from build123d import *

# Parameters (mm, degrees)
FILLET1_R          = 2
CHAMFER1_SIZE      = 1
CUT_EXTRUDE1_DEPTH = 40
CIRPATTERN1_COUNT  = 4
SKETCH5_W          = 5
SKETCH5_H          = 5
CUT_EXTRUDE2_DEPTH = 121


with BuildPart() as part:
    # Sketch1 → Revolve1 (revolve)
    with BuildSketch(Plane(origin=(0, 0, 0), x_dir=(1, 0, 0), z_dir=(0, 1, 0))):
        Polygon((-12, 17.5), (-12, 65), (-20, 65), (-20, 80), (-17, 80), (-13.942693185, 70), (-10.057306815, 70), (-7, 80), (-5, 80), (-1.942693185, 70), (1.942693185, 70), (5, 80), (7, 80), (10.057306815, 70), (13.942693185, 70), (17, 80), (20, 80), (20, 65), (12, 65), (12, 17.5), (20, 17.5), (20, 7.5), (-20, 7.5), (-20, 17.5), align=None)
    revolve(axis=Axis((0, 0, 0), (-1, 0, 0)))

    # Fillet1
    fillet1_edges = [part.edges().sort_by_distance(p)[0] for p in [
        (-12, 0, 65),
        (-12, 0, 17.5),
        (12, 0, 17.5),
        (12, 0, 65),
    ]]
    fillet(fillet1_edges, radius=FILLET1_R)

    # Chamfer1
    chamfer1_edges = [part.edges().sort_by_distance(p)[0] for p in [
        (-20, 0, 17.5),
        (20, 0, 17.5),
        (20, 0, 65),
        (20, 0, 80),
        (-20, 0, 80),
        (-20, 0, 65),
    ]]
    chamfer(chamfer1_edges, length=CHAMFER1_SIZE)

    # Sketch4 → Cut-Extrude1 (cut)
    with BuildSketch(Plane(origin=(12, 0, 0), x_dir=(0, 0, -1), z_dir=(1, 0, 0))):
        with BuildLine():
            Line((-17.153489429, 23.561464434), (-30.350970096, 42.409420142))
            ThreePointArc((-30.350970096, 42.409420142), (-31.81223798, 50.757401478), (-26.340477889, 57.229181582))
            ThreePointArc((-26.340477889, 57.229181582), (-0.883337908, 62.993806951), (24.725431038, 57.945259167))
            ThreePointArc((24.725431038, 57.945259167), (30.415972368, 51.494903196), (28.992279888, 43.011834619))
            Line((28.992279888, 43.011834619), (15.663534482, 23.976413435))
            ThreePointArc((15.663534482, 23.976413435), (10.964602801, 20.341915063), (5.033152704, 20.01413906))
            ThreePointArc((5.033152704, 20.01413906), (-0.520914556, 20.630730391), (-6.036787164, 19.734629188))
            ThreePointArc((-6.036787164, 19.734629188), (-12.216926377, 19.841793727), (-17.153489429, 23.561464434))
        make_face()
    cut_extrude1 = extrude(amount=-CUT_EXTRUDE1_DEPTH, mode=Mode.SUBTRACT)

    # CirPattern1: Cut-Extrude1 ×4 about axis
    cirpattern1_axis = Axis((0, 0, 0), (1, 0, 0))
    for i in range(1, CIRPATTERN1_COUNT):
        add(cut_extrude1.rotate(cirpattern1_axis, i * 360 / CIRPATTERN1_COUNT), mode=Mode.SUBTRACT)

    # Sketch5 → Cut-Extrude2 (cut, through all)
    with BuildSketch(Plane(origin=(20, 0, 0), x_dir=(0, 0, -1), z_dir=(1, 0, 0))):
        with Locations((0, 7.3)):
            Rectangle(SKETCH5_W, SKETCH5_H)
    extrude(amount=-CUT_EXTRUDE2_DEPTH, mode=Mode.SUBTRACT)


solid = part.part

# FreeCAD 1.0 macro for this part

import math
import FreeCAD as App
import Part
import Sketcher
Q = App.Units.Quantity


def edges_at(feature, points):
    """Names of the edges that pass closest to the given points."""
    edges = feature.Shape.Edges
    near = lambda p: min(range(len(edges)), key=lambda i: edges[i].distToShape(Part.Vertex(*p))[0])
    return sorted({f"Edge{near(p) + 1}" for p in points})


def add_polygon(sketch, points):
    """Adds a closed chain of lines whose ends are joined by coincident constraints."""
    first, n = sketch.GeometryCount, len(points)
    for a, b in zip(points, points[1:] + points[:1]):
        sketch.addGeometry(Part.LineSegment(App.Vector(*a, 0), App.Vector(*b, 0)), False)
    for i in range(n):
        sketch.addConstraint(Sketcher.Constraint("Coincident", first + i, 2, first + (i + 1) % n, 1))

doc = App.newDocument("Part")
body = doc.addObject("PartDesign::Body", "Body")

sketch1 = doc.addObject("Sketcher::SketchObject", "Sketch")
body.addObject(sketch1)
sketch1.AttachmentSupport = (doc.XZ_Plane, [""])
sketch1.MapMode = "FlatFace"
add_polygon(sketch1, [(-12, -65), (-12, -17.5), (-20, -17.5), (-20, -7.5), (20, -7.5), (20, -17.5), (12, -17.5), (12, -65), (20, -65), (20, -80), (17, -80), (13.9, -70), (10.1, -70), (7, -80), (5, -80), (1.9, -70), (-1.9, -70), (-5, -80), (-7, -80), (-10.1, -70), (-13.9, -70), (-17, -80), (-20, -80), (-20, -65)])
sketch1.addConstraint(Sketcher.Constraint("Vertical", 0))
sketch1.addConstraint(Sketcher.Constraint("Horizontal", 1))
sketch1.addConstraint(Sketcher.Constraint("Vertical", 2))
sketch1.addConstraint(Sketcher.Constraint("Horizontal", 3))
sketch1.addConstraint(Sketcher.Constraint("Vertical", 4))
sketch1.addConstraint(Sketcher.Constraint("Horizontal", 5))
sketch1.addConstraint(Sketcher.Constraint("Vertical", 6))
sketch1.addConstraint(Sketcher.Constraint("Horizontal", 7))
sketch1.addConstraint(Sketcher.Constraint("Vertical", 8))
sketch1.addConstraint(Sketcher.Constraint("Horizontal", 9))
sketch1.addConstraint(Sketcher.Constraint("Horizontal", 11))
sketch1.addConstraint(Sketcher.Constraint("Horizontal", 13))
sketch1.addConstraint(Sketcher.Constraint("Horizontal", 15))
sketch1.addConstraint(Sketcher.Constraint("Horizontal", 17))
sketch1.addConstraint(Sketcher.Constraint("Horizontal", 19))
sketch1.addConstraint(Sketcher.Constraint("Horizontal", 21))
sketch1.addConstraint(Sketcher.Constraint("Vertical", 22))
sketch1.addConstraint(Sketcher.Constraint("Horizontal", 23))
sketch1.addConstraint(Sketcher.Constraint("Symmetric", 1, 2, 4, 2, -2))
sketch1.addConstraint(Sketcher.Constraint("Symmetric", 13, 2, 16, 2, -2))
sketch1.addConstraint(Sketcher.Constraint("Symmetric", 11, 2, 18, 2, -2))
sketch1.addConstraint(Sketcher.Constraint("Symmetric", 9, 2, 20, 2, -2))
sketch1.addConstraint(Sketcher.Constraint("Symmetric", 7, 2, 22, 2, -2))
sketch1.addConstraint(Sketcher.Constraint("Parallel", 10, 14))
sketch1.addConstraint(Sketcher.Constraint("Parallel", 12, 16))
sketch1.addConstraint(Sketcher.Constraint("Parallel", 14, 18))
sketch1.addConstraint(Sketcher.Constraint("Parallel", 16, 20))
sketch1.addConstraint(Sketcher.Constraint("Horizontal", 9, 2, 12, 2))
sketch1.addConstraint(Sketcher.Constraint("Horizontal", 11, 2, 14, 2))
sketch1.addConstraint(Sketcher.Constraint("Vertical", 4, 2, 7, 2))
sketch1.addConstraint(Sketcher.Constraint("Equal", 1, 5))
sketch1.addConstraint(Sketcher.Constraint("Equal", 11, 15))
sketch1.addConstraint(Sketcher.Constraint("Equal", 13, 17))
sketch1.addConstraint(Sketcher.Constraint("DistanceX", 1, 2, 1, 1, Q("8 mm")))
sketch1.addConstraint(Sketcher.Constraint("DistanceX", 3, 1, 3, 2, Q("40 mm")))
sketch1.addConstraint(Sketcher.Constraint("DistanceX", 9, 2, 9, 1, Q("3 mm")))
sketch1.addConstraint(Sketcher.Constraint("DistanceX", 13, 2, 13, 1, Q("2 mm")))
sketch1.addConstraint(Sketcher.Constraint("DistanceY", 2, 1, 2, 2, Q("10 mm")))
sketch1.addConstraint(Sketcher.Constraint("DistanceY", 8, 2, 8, 1, Q("15 mm")))
sketch1.addConstraint(Sketcher.Constraint("Angle", 10, Q("107 deg")))
sketch1.addConstraint(Sketcher.Constraint("DistanceY", 0, 1, 0, 2, Q("47.5 mm")))
sketch1.addConstraint(Sketcher.Constraint("DistanceY", 6, 2, -1, 1, Q("65 mm")))
sketch1.addConstraint(Sketcher.Constraint("DistanceY", 10, 2, -1, 1, Q("70 mm")))
revolution = doc.addObject("PartDesign::Revolution", "Revolution")
body.addObject(revolution)
revolution.Profile = sketch1
revolution.ReferenceAxis = (sketch1, ["H_Axis"])
revolution.Angle = 360
doc.recompute()

fillet = doc.addObject("PartDesign::Fillet", "Fillet")
body.addObject(fillet)
fillet.Base = (revolution, edges_at(revolution, [
    (-12, 0, 65),
    (-12, 0, 17.5),
    (12, 0, 17.5),
    (12, 0, 65),
]))
fillet.Radius = 2
doc.recompute()

chamfer = doc.addObject("PartDesign::Chamfer", "Chamfer")
body.addObject(chamfer)
chamfer.Base = (fillet, edges_at(fillet, [
    (-20, 0, 17.5),
    (20, 0, 17.5),
    (20, 0, 65),
    (20, 0, 80),
    (-20, 0, 80),
    (-20, 0, 65),
]))
chamfer.Size = 1

sketch2 = doc.addObject("Sketcher::SketchObject", "Sketch001")
body.addObject(sketch2)
sketch2.AttachmentSupport = (doc.YZ_Plane, [""])
sketch2.MapMode = "FlatFace"
sketch2.AttachmentOffset = App.Placement(App.Vector(0, 0, 12), App.Rotation())
sketch2.addGeometry(Part.LineSegment(App.Vector(42, 30, 0), App.Vector(24, 17, 0)), False)
sketch2.addGeometry(Part.ArcOfCircle(Part.Circle(App.Vector(29, 9, 0), App.Vector(0, 0, 1), 10), math.radians(125), math.radians(197)), False)
sketch2.addGeometry(Part.ArcOfCircle(Part.Circle(App.Vector(0, 0, 0), App.Vector(0, 0, 1), 21), math.radians(-14), math.radians(17)), False)
sketch2.addGeometry(Part.ArcOfCircle(Part.Circle(App.Vector(30, -7, 0), App.Vector(0, 0, 1), 10), math.radians(166), math.radians(235)), False)
sketch2.addGeometry(Part.LineSegment(App.Vector(24, -16, 0), App.Vector(43, -29, 0)), False)
sketch2.addGeometry(Part.ArcOfCircle(Part.Circle(App.Vector(49, -21, 0), App.Vector(0, 0, 1), 10), math.radians(-125), math.radians(-23)), False)
sketch2.addGeometry(Part.ArcOfCircle(Part.Circle(App.Vector(0, 0, 0), App.Vector(0, 0, 1), 63), math.radians(-23), math.radians(25)), False)
sketch2.addGeometry(Part.ArcOfCircle(Part.Circle(App.Vector(48, 22, 0), App.Vector(0, 0, 1), 10), math.radians(25), math.radians(125)), False)
sketch2.addConstraint(Sketcher.Constraint("Tangent", 0, 2, 1, 1))
sketch2.addConstraint(Sketcher.Constraint("Tangent", 1, 2, 2, 2))
sketch2.addConstraint(Sketcher.Constraint("Tangent", 2, 1, 3, 1))
sketch2.addConstraint(Sketcher.Constraint("Tangent", 3, 2, 4, 1))
sketch2.addConstraint(Sketcher.Constraint("Tangent", 4, 2, 5, 1))
sketch2.addConstraint(Sketcher.Constraint("Tangent", 5, 2, 6, 1))
sketch2.addConstraint(Sketcher.Constraint("Tangent", 6, 2, 7, 1))
sketch2.addConstraint(Sketcher.Constraint("Tangent", 7, 2, 0, 1))
sketch2.addConstraint(Sketcher.Constraint("Coincident", 2, 3, -1, 1))
sketch2.addConstraint(Sketcher.Constraint("Coincident", 6, 3, -1, 1))
sketch2.addConstraint(Sketcher.Constraint("Equal", 1, 3))
sketch2.addConstraint(Sketcher.Constraint("Equal", 3, 5))
sketch2.addConstraint(Sketcher.Constraint("Equal", 5, 7))
sketch2.addConstraint(Sketcher.Constraint("Radius", 1, Q("10 mm")))
sketch2.addConstraint(Sketcher.Constraint("Radius", 6, Q("63 mm")))
sketch2.addConstraint(Sketcher.Constraint("Angle", 0, Q("-145 deg")))
sketch2.addConstraint(Sketcher.Constraint("Angle", 4, Q("-35 deg")))
sketch2.addConstraint(Sketcher.Constraint("Radius", 2, Q("20.637306 mm")))
sketch2.addConstraint(Sketcher.Constraint("DistanceY", 1, 3, 7, 2, Q("21.389001 mm")))
sketch2.addConstraint(Sketcher.Constraint("DistanceX", -1, 1, 5, 3, Q("48.747599 mm")))
pocket1 = doc.addObject("PartDesign::Pocket", "Pocket")
body.addObject(pocket1)
pocket1.Profile = sketch2
pocket1.Length = 40
doc.recompute()

polarpattern = doc.addObject("PartDesign::PolarPattern", "PolarPattern")
body.addObject(polarpattern)
polarpattern.Originals = [pocket1]
polarpattern.Axis = (doc.X_Axis, [""])
polarpattern.Angle = 360
polarpattern.Occurrences = 4
body.Tip = polarpattern

sketch3 = doc.addObject("Sketcher::SketchObject", "Sketch002")
body.addObject(sketch3)
sketch3.AttachmentSupport = (doc.YZ_Plane, [""])
sketch3.MapMode = "FlatFace"
sketch3.AttachmentOffset = App.Placement(App.Vector(0, 0, 20), App.Rotation())
add_polygon(sketch3, [(10, 2), (5, 2), (5, -2), (10, -2)])
sketch3.addConstraint(Sketcher.Constraint("Horizontal", 0))
sketch3.addConstraint(Sketcher.Constraint("Vertical", 1))
sketch3.addConstraint(Sketcher.Constraint("Horizontal", 2))
sketch3.addConstraint(Sketcher.Constraint("Vertical", 3))
sketch3.addConstraint(Sketcher.Constraint("Equal", 2, 1))
sketch3.addConstraint(Sketcher.Constraint("DistanceX", 0, 2, 0, 1, Q("5 mm")))
sketch3.addConstraint(Sketcher.Constraint("DistanceX", -1, 1, 0, 2, Q("4.8 mm")))
sketch3.addConstraint(Sketcher.Constraint("DistanceY", -1, 1, 0, 2, Q("2.5 mm")))
pocket2 = doc.addObject("PartDesign::Pocket", "Pocket001")
body.addObject(pocket2)
pocket2.Profile = sketch3
pocket2.Type = "ThroughAll"

doc.recompute()
